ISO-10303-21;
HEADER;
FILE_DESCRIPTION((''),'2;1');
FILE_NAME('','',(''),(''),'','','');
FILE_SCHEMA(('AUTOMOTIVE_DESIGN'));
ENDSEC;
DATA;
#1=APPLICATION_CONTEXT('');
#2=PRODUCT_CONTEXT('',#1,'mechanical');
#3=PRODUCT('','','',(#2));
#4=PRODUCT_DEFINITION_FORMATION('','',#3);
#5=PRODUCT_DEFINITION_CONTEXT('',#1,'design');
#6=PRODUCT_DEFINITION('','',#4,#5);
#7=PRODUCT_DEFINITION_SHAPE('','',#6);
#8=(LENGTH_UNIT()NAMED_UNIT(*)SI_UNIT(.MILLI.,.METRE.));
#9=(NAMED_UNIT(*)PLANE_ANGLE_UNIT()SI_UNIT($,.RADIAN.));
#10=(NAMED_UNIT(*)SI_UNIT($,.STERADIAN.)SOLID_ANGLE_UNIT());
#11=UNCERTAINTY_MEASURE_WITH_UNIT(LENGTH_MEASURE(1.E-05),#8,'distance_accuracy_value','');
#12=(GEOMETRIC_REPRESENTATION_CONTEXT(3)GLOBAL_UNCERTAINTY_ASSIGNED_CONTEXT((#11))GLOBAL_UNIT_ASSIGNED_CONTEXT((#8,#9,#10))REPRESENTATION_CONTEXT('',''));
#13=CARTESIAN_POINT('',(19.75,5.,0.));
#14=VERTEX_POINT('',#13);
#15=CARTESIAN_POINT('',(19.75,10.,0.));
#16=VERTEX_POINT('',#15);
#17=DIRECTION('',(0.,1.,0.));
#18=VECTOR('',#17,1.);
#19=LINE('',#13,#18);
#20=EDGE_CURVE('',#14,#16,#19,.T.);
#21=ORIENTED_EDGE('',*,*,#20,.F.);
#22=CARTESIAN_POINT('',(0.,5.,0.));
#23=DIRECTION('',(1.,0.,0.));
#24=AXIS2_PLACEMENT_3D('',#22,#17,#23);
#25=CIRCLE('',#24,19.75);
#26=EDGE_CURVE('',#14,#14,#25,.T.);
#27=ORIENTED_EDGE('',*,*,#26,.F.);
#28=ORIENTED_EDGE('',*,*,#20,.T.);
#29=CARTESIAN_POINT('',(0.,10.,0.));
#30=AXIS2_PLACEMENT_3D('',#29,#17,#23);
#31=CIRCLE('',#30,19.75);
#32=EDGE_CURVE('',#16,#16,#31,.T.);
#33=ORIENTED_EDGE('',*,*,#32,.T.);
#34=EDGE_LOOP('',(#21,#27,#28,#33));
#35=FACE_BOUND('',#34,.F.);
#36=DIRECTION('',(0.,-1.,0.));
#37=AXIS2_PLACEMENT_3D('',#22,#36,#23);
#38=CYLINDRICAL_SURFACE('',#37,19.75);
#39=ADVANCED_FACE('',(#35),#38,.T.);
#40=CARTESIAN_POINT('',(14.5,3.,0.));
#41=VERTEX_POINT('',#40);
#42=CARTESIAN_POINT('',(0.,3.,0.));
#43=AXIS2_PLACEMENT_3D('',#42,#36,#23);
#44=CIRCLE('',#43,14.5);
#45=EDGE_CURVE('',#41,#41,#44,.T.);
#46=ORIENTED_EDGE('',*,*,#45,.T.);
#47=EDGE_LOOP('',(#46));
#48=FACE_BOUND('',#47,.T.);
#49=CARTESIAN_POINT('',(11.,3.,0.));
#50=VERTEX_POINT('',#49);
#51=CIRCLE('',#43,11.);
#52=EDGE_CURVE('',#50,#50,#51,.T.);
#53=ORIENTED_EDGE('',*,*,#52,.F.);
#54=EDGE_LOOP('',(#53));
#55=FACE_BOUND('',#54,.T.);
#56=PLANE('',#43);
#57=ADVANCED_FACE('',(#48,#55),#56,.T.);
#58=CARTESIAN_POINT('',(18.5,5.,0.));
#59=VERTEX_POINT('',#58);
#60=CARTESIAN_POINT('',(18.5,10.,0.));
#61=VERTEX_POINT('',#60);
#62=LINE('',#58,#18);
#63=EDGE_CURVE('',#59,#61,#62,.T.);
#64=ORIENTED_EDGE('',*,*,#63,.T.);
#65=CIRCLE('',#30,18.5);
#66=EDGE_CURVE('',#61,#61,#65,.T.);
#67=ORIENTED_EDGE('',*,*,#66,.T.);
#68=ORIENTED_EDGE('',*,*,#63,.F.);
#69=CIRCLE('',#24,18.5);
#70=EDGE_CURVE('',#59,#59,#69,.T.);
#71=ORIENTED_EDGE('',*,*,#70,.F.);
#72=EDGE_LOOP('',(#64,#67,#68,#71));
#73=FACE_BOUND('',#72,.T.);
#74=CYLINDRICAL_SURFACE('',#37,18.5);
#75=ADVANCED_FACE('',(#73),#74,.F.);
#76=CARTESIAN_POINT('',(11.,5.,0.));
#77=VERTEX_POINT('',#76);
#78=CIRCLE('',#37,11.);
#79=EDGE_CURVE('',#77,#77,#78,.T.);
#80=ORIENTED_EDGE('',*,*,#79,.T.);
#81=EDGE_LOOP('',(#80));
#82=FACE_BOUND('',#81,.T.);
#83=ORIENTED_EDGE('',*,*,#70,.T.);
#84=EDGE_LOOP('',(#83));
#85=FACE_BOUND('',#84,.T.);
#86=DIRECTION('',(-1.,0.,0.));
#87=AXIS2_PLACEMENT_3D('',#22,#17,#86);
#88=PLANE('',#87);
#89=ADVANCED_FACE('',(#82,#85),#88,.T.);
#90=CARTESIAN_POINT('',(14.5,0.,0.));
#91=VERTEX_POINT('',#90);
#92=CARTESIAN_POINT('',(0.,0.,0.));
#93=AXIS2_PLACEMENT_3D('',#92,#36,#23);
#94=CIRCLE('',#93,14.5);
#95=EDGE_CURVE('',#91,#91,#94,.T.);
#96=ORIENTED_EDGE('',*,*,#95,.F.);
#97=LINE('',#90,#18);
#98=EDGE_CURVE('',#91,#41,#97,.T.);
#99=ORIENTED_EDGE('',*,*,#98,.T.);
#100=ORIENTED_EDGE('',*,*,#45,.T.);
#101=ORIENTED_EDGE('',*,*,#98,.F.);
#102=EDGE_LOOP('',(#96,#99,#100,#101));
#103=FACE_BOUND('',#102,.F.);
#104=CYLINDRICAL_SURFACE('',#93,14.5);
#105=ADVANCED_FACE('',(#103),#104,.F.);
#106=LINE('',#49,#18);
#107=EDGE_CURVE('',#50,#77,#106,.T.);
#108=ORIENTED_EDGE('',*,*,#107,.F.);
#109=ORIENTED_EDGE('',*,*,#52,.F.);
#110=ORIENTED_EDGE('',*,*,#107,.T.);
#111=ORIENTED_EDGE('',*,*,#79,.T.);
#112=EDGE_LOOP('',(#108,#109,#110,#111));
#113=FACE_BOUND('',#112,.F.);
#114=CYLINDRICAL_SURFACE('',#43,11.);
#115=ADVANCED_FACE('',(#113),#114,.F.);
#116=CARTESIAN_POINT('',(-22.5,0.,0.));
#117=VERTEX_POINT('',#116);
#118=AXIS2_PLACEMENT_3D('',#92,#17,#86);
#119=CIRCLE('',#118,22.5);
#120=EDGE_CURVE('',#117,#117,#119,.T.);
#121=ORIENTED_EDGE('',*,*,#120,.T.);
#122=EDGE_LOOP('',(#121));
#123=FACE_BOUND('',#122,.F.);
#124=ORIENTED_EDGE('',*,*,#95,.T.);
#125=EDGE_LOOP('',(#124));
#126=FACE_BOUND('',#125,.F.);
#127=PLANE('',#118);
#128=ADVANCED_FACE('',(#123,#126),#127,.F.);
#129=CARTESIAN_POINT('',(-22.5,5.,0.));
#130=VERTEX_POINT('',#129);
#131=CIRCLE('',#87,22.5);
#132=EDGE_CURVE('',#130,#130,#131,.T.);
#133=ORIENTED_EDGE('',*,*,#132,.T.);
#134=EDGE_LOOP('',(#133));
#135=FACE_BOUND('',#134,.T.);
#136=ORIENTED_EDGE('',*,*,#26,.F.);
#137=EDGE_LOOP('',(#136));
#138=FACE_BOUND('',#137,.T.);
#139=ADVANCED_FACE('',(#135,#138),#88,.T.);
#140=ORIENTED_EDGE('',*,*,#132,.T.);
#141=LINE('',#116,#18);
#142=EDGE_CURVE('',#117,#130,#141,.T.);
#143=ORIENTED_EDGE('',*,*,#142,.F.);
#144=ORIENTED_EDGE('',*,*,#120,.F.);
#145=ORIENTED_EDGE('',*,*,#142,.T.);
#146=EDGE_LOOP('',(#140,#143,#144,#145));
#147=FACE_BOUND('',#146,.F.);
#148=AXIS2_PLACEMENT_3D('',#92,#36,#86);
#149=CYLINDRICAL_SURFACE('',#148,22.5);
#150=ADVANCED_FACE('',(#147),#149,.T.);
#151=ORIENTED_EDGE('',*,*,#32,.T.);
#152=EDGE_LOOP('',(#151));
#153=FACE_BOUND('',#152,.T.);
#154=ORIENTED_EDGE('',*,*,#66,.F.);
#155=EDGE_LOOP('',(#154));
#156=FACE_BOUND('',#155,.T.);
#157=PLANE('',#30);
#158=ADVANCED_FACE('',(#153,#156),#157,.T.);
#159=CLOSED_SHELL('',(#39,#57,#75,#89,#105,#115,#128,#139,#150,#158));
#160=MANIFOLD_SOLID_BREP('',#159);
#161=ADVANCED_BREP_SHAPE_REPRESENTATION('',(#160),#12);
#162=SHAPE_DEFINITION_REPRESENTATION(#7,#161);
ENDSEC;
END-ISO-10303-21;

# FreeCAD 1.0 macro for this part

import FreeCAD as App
import Part
import Sketcher
from FreeCAD import Vector
Q = App.Units.Quantity

doc = App.newDocument("Part")
params = doc.addObject("Spreadsheet::Sheet", "Params")
for row, (alias, value) in enumerate([
    ("sketch1_diameter", "45 mm"),
    ("pad1_length", "5 mm"),
    ("sketch2_diameter", "37 mm"),
    ("sketch2_diameter2", "39.5 mm"),
    ("pad2_length", "5 mm"),
    ("sketch3_diameter", "29 mm"),
    ("pocket1_length", "3 mm"),
    ("sketch4_diameter", "22 mm"),
    ("pocket2_length", "5 mm"),
], start=1):
    params.set(f"A{row}", alias)
    params.set(f"B{row}", "=" + value)
    params.setAlias(f"B{row}", alias)

body = doc.addObject("PartDesign::Body", "Body")

# Sketch on XZ plane
sketch1 = body.newObject("Sketcher::SketchObject", "Sketch")
sketch1.AttachmentSupport = (doc.getObject("XZ_Plane"), [""])
sketch1.MapMode = "FlatFace"
sketch1.addGeometry(Part.Circle(Vector(0, 0, 0), Vector(0, 0, 1), 22.5), False)
sketch1.addConstraint(Sketcher.Constraint("Coincident", 0, 3, -1, 1))
sketch1.addConstraint(Sketcher.Constraint("Diameter", 0, Q("45 mm")))
sketch1.setExpression("Constraints[1]", "Params.sketch1_diameter")
pad1 = body.newObject("PartDesign::Pad", "Pad")
pad1.Profile = sketch1
pad1.setExpression("Length", "Params.pad1_length")
pad1.Reversed = True

# Sketch on XZ plane
sketch2 = body.newObject("Sketcher::SketchObject", "Sketch001")
sketch2.AttachmentSupport = (doc.getObject("XZ_Plane"), [""])
sketch2.MapMode = "FlatFace"
sketch2.AttachmentOffset = App.Placement(Vector(0, 0, -5), App.Rotation())
sketch2.addGeometry(Part.Circle(Vector(0, 0, 0), Vector(0, 0, 1), 19.75), False)
sketch2.addGeometry(Part.Circle(Vector(0, 0, 0), Vector(0, 0, 1), 18.5), False)
sketch2.addConstraint(Sketcher.Constraint("Coincident", 0, 3, -1, 1))
sketch2.addConstraint(Sketcher.Constraint("Coincident", 1, 3, -1, 1))
sketch2.addConstraint(Sketcher.Constraint("Diameter", 1, Q("37 mm")))
sketch2.addConstraint(Sketcher.Constraint("Diameter", 0, Q("39.5 mm")))
sketch2.setExpression("Constraints[2]", "Params.sketch2_diameter")
sketch2.setExpression("Constraints[3]", "Params.sketch2_diameter2")
pad2 = body.newObject("PartDesign::Pad", "Pad001")
pad2.Profile = sketch2
pad2.setExpression("Length", "Params.pad2_length")
pad2.Reversed = True

# Sketch on XZ plane
sketch3 = body.newObject("Sketcher::SketchObject", "Sketch002")
sketch3.AttachmentSupport = (doc.getObject("XZ_Plane"), [""])
sketch3.MapMode = "FlatFace"
sketch3.addGeometry(Part.Circle(Vector(0, 0, 0), Vector(0, 0, 1), 14.5), False)
sketch3.addConstraint(Sketcher.Constraint("Coincident", 0, 3, -1, 1))
sketch3.addConstraint(Sketcher.Constraint("Diameter", 0, Q("29 mm")))
sketch3.setExpression("Constraints[1]", "Params.sketch3_diameter")
pocket1 = body.newObject("PartDesign::Pocket", "Pocket")
pocket1.Profile = sketch3
pocket1.setExpression("Length", "Params.pocket1_length")

# Sketch on XZ plane
sketch4 = body.newObject("Sketcher::SketchObject", "Sketch003")
sketch4.AttachmentSupport = (doc.getObject("XZ_Plane"), [""])
sketch4.MapMode = "FlatFace"
sketch4.AttachmentOffset = App.Placement(Vector(0, 0, -3), App.Rotation())
sketch4.addGeometry(Part.Circle(Vector(0, 0, 0), Vector(0, 0, 1), 11), False)
sketch4.addConstraint(Sketcher.Constraint("Coincident", 0, 3, -1, 1))
sketch4.addConstraint(Sketcher.Constraint("Diameter", 0, Q("22 mm")))
sketch4.setExpression("Constraints[1]", "Params.sketch4_diameter")
pocket2 = body.newObject("PartDesign::Pocket", "Pocket001")
pocket2.Profile = sketch4
pocket2.setExpression("Length", "Params.pocket2_length")

doc.recompute()
